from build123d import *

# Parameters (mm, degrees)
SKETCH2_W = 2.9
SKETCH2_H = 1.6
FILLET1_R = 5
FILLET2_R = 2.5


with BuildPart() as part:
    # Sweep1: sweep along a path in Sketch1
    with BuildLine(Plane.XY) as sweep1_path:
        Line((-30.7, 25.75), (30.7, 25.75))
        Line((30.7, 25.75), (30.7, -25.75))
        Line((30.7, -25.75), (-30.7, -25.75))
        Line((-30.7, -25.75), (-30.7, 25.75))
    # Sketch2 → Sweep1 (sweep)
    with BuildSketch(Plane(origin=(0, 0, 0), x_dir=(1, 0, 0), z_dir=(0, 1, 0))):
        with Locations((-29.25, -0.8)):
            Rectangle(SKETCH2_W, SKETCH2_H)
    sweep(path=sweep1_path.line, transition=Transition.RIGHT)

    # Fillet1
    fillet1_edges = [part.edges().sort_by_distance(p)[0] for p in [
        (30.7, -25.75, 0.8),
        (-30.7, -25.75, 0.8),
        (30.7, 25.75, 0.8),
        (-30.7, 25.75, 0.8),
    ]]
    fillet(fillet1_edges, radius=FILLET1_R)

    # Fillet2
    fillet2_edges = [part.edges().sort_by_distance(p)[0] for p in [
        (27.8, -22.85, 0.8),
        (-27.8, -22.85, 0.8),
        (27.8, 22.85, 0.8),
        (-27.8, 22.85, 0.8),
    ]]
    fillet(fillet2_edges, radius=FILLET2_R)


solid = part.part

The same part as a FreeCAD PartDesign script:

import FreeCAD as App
import Part
import Sketcher
from FreeCAD import Vector


def edges_at(feature, points):
    """Names of the edges that pass closest to the given points."""
    edges = feature.Shape.Edges
    near = lambda p: min(range(len(edges)), key=lambda i: edges[i].distToShape(Part.Vertex(*p))[0])
    return sorted({f"Edge{near(p) + 1}" for p in points})


def add_polygon(sketch, points):
    """Adds a closed chain of lines whose ends are joined by coincident constraints."""
    first, n = sketch.GeometryCount, len(points)
    for a, b in zip(points, points[1:] + points[:1]):
        sketch.addGeometry(Part.LineSegment(App.Vector(*a, 0), App.Vector(*b, 0)), False)
    for i in range(n):
        sketch.addConstraint(Sketcher.Constraint("Coincident", first + i, 2, first + (i + 1) % n, 1))

doc = App.newDocument("Part")
body = doc.addObject("PartDesign::Body", "Body")

# Sketch on XZ plane
sketch1 = body.newObject("Sketcher::SketchObject", "Sketch")
sketch1.AttachmentSupport = (doc.getObject("XZ_Plane"), [""])
sketch1.MapMode = "FlatFace"
add_polygon(sketch1, [(-30.7, 0), (-30.7, 1.6), (-27.8, 1.6), (-27.8, 0)])  # lines 0-3
sketch1.addConstraint([
    Sketcher.Constraint("Vertical", 0),
    Sketcher.Constraint("Horizontal", 1),
    Sketcher.Constraint("Vertical", 2),
    Sketcher.Constraint("Horizontal", 3),
    Sketcher.Constraint("PointOnObject", 2, 2, -1),
    Sketcher.Constraint("DistanceX", 1, 1, 1, 2, 2.9),
    Sketcher.Constraint("DistanceY", 0, 1, 0, 2, 1.6),
    Sketcher.Constraint("DistanceX", 0, 2, -1, 1, 30.7),
])

# Sketch on XY plane
sketch2 = body.newObject("Sketcher::SketchObject", "Sketch001")
sketch2.AttachmentSupport = (doc.getObject("XY_Plane"), [""])
sketch2.MapMode = "FlatFace"
add_polygon(sketch2, [(-31, 26), (31, 26), (31, -26), (-31, -26)])  # lines 0-3
sketch2.addConstraint([
    Sketcher.Constraint("Horizontal", 0),
    Sketcher.Constraint("Vertical", 1),
    Sketcher.Constraint("Horizontal", 2),
    Sketcher.Constraint("Vertical", 3),
    Sketcher.Constraint("Symmetric", 0, 2, 2, 2, -1, 1),
    Sketcher.Constraint("DistanceX", 0, 1, 0, 2, 61.4),
    Sketcher.Constraint("DistanceY", 1, 2, 1, 1, 51.5),
])
doc.recompute()

additivepipe = body.newObject("PartDesign::AdditivePipe", "AdditivePipe")
additivepipe.Profile = sketch1
additivepipe.Spine = (sketch2, ["Edge1", "Edge2", "Edge3", "Edge4"])
additivepipe.Transition = "Right corner"
doc.recompute()

fillet = body.newObject("PartDesign::Fillet", "Fillet")
fillet.Base = (additivepipe, edges_at(additivepipe, [
    (30.7, -25.75, 0.8),
    (-30.7, -25.75, 0.8),
    (30.7, 25.75, 0.8),
    (-30.7, 25.75, 0.8),
]))
fillet.Radius = 5
doc.recompute()

fillet2 = body.newObject("PartDesign::Fillet", "Fillet001")
fillet2.Base = (fillet, edges_at(fillet, [
    (27.8, -22.85, 0.8),
    (-27.8, -22.85, 0.8),
    (27.8, 22.85, 0.8),
    (-27.8, 22.85, 0.8),
]))
fillet2.Radius = 2.5

doc.recompute()
